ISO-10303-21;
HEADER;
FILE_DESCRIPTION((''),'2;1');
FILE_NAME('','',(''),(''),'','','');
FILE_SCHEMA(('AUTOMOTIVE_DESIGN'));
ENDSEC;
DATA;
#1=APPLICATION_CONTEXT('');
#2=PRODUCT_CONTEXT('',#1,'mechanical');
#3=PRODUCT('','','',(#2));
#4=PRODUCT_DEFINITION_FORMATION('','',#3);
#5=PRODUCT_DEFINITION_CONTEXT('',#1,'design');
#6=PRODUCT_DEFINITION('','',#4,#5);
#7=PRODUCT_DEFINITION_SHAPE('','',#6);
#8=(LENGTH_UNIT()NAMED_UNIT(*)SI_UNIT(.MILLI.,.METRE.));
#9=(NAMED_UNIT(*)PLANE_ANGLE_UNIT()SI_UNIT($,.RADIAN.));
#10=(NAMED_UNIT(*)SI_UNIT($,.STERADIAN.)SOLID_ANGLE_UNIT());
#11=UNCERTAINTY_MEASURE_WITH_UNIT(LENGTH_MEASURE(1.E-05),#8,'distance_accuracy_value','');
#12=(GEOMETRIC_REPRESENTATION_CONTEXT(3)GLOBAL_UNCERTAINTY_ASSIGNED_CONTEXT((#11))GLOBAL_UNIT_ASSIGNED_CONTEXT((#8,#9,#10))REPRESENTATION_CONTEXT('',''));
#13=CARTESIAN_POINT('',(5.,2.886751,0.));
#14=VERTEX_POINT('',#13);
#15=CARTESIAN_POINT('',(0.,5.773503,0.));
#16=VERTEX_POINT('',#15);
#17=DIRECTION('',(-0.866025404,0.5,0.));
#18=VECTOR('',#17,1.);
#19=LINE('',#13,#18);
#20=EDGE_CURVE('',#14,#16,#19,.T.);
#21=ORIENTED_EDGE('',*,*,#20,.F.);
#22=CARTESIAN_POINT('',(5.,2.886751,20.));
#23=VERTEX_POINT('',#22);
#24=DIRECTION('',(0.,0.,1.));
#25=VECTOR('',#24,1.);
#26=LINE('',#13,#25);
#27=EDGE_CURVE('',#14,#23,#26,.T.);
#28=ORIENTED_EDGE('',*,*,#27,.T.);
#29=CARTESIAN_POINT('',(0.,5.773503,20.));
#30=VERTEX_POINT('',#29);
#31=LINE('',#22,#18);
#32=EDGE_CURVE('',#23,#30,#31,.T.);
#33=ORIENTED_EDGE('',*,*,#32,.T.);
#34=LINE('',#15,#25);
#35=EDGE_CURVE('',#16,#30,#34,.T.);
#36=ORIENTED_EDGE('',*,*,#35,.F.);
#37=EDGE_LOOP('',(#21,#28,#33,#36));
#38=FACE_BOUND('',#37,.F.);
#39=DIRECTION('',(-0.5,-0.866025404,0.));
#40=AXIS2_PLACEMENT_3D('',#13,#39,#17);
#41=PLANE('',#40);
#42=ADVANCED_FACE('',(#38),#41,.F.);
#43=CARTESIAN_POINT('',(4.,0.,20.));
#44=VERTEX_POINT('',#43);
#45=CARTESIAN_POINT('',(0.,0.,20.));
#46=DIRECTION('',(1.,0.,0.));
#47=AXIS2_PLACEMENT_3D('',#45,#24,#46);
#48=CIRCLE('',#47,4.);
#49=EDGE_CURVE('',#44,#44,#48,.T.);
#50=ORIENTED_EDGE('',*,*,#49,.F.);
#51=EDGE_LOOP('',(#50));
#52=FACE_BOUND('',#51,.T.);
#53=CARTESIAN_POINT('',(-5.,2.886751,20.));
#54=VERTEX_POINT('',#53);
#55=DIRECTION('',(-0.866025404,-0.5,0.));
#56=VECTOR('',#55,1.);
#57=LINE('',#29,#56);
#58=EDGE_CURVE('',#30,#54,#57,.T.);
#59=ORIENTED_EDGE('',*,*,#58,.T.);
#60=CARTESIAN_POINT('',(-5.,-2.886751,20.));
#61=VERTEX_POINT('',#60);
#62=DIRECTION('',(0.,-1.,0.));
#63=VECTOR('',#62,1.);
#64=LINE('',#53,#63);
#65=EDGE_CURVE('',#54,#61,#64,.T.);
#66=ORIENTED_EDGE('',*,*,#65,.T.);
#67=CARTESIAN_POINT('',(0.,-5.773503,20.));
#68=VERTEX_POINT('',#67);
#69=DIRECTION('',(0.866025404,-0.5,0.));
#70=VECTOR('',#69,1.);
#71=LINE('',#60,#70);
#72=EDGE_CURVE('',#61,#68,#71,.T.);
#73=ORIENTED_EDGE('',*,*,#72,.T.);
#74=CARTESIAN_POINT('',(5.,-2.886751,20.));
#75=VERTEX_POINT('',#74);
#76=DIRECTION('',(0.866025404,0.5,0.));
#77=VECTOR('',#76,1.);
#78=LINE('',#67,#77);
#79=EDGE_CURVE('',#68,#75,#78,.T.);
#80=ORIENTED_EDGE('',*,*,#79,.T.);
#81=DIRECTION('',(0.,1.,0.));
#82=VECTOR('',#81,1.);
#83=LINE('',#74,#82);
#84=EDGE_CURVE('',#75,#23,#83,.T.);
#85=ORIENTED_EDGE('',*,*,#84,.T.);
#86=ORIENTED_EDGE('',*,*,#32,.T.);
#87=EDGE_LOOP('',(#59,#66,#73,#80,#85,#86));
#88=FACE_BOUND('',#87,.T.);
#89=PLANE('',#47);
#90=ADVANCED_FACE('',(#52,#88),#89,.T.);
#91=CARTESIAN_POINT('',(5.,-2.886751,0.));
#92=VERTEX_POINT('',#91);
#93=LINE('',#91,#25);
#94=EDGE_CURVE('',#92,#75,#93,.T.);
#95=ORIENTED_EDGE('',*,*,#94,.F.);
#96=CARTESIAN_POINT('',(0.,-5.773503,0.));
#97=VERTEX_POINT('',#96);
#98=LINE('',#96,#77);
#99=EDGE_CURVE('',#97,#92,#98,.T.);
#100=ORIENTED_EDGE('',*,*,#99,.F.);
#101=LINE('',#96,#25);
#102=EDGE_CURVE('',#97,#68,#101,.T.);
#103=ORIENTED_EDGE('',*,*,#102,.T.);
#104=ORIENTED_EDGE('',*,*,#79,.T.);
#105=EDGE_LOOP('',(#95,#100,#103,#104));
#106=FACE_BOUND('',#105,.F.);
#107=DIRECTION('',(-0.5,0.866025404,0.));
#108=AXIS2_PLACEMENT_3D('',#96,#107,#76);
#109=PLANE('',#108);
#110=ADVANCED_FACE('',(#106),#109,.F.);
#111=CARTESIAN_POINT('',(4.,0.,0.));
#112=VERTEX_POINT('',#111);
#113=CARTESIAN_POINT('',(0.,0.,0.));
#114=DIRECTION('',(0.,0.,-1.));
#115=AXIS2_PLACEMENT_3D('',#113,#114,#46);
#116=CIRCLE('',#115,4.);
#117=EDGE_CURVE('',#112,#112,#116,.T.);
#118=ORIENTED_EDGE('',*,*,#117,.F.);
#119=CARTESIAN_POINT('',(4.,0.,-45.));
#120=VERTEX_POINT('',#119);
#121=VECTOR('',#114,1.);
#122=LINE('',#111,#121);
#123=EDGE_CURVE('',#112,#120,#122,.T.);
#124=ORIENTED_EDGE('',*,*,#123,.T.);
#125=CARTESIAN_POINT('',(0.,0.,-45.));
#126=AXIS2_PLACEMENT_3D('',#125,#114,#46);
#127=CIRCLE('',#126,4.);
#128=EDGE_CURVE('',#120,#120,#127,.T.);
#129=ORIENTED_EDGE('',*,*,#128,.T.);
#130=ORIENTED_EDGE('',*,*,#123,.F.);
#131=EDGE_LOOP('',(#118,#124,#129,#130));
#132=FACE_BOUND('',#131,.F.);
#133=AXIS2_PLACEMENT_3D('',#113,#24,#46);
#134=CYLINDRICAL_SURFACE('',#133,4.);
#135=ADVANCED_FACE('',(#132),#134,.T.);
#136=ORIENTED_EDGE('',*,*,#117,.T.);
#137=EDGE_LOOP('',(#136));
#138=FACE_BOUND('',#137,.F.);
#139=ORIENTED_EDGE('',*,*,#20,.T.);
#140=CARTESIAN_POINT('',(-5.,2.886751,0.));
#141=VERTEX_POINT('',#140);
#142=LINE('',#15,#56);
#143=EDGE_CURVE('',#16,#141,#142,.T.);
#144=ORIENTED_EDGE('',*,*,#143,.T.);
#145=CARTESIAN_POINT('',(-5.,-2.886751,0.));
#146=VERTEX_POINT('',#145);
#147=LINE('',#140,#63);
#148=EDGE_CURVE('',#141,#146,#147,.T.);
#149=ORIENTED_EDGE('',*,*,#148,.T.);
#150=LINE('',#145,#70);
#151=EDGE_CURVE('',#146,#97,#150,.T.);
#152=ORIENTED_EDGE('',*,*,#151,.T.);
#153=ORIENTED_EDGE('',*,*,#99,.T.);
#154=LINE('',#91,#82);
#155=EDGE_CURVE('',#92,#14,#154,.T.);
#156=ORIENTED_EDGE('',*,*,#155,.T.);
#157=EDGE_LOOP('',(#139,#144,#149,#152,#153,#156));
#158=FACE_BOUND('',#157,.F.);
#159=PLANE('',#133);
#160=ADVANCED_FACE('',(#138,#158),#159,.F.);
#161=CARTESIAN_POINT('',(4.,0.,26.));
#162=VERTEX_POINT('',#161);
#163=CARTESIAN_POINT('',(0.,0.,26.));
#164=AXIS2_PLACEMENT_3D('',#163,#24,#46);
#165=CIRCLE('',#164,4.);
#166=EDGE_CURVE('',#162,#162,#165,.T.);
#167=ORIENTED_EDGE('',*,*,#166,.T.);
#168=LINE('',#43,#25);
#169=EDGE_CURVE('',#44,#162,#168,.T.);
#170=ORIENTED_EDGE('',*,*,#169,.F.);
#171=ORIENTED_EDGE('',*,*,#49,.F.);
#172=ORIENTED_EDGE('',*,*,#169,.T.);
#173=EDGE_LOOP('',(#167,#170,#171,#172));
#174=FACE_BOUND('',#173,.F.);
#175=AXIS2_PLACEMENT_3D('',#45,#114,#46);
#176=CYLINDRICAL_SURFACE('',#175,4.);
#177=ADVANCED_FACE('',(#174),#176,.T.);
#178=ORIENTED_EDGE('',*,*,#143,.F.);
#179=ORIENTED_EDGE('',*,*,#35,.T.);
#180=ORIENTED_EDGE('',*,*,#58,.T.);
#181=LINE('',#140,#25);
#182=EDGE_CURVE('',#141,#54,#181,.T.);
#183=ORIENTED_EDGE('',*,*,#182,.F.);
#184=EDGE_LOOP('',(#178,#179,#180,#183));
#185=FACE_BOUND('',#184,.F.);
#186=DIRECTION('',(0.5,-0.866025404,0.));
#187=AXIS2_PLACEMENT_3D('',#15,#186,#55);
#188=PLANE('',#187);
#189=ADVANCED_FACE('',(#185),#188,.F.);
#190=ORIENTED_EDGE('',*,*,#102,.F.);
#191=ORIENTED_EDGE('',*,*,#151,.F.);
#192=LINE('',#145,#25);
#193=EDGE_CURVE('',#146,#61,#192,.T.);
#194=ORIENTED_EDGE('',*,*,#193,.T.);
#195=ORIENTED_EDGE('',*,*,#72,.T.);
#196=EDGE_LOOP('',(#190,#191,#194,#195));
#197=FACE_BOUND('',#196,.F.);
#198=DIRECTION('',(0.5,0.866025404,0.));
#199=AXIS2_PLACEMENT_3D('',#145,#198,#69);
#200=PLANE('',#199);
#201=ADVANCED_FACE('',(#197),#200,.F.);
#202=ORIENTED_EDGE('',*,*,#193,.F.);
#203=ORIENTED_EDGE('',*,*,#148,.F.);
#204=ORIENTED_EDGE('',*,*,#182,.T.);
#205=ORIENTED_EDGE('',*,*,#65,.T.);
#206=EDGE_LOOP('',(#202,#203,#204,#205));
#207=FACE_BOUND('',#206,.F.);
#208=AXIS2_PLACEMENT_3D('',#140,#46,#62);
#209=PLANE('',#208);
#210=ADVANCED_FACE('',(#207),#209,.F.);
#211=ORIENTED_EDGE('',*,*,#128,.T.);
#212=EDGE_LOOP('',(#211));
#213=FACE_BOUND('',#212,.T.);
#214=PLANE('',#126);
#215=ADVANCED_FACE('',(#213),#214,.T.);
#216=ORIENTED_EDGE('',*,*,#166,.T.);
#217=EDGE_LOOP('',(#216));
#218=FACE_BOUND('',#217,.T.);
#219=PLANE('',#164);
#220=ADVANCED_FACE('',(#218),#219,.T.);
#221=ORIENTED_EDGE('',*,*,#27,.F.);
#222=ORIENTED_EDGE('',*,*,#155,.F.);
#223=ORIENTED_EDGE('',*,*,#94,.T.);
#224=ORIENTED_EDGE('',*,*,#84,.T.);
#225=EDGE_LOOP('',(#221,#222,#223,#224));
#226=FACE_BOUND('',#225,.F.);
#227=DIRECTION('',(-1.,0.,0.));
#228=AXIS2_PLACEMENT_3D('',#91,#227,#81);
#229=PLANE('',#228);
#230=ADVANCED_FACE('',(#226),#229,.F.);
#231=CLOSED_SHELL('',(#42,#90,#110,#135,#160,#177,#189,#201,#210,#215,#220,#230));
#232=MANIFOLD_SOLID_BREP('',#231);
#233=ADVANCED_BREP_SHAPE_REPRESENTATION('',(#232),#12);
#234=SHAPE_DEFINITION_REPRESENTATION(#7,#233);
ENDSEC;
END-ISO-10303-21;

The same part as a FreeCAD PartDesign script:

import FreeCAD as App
import Part
import Sketcher

V = App.Vector
Q = App.Units.Quantity

doc = App.newDocument("Part")
params = doc.addObject("Spreadsheet::Sheet", "Params")
for row, (alias, value) in enumerate([
    ("pad1_length", "20 mm"),
    ("sketch2_diameter", "8 mm"),
    ("pad2_length", "45 mm"),
    ("sketch3_diameter", "8 mm"),
    ("pad3_length", "6 mm"),
], start=1):
    params.set(f"A{row}", alias)
    params.set(f"B{row}", "=" + value)
    params.setAlias(f"B{row}", alias)

body = doc.addObject("PartDesign::Body", "Body")

# Sketch on XY plane
sketch1 = body.newObject("Sketcher::SketchObject", "Sketch")
sketch1.AttachmentSupport = (doc.getObject("XY_Plane"), [""])
sketch1.MapMode = "FlatFace"
sketch1.addGeometry([
    Part.LineSegment(V(5, 3, 0), V(0, 6, 0)),  # 0
    Part.LineSegment(V(0, 6, 0), V(-5, 3, 0)),  # 1
    Part.LineSegment(V(-5, 3, 0), V(-5, -3, 0)),  # 2
    Part.LineSegment(V(-5, -3, 0), V(0, -6, 0)),  # 3
    Part.LineSegment(V(0, -6, 0), V(5, -3, 0)),  # 4
    Part.LineSegment(V(5, -3, 0), V(5, 3, 0)),  # 5
], False)
sketch1.addConstraint([
    Sketcher.Constraint("Coincident", 0, 2, 1, 1),
    Sketcher.Constraint("Coincident", 1, 2, 2, 1),
    Sketcher.Constraint("Coincident", 2, 2, 3, 1),
    Sketcher.Constraint("Coincident", 3, 2, 4, 1),
    Sketcher.Constraint("Coincident", 4, 2, 5, 1),
    Sketcher.Constraint("Coincident", 5, 2, 0, 1),
    Sketcher.Constraint("Vertical", 2),
    Sketcher.Constraint("Vertical", 5),
    Sketcher.Constraint("Symmetric", 0, 2, 3, 2, -1, 1),
    Sketcher.Constraint("Symmetric", 1, 2, 4, 2, -1, 1),
    Sketcher.Constraint("PointOnObject", 0, 2, -2),
    Sketcher.Constraint("Parallel", 0, 3),
    Sketcher.Constraint("Horizontal", 2, 2, 4, 2),
    Sketcher.Constraint("Angle", 0, Q("150 deg")),
    Sketcher.Constraint("DistanceX", 1, 2, -1, 1, 5.0),
    Sketcher.Constraint("DistanceY", 2, 2, 2, 1, 5.773503),
])
pad1 = body.newObject("PartDesign::Pad", "Pad")
pad1.Profile = sketch1
pad1.setExpression("Length", "Params.pad1_length")

# Sketch on XY plane
sketch2 = body.newObject("Sketcher::SketchObject", "Sketch001")
sketch2.AttachmentSupport = (doc.getObject("XY_Plane"), [""])
sketch2.MapMode = "FlatFace"
sketch2.addGeometry(Part.Circle(V(0, 0, 0), V(0, 0, 1), 4), False)
sketch2.addConstraint([
    Sketcher.Constraint("Coincident", 0, 3, -1, 1),
    Sketcher.Constraint("Diameter", 0, 8.0),
])
sketch2.setExpression("Constraints[1]", "Params.sketch2_diameter")
pad2 = body.newObject("PartDesign::Pad", "Pad001")
pad2.Profile = sketch2
pad2.setExpression("Length", "Params.pad2_length")
pad2.Reversed = True

# Sketch on XY plane
sketch3 = body.newObject("Sketcher::SketchObject", "Sketch002")
sketch3.AttachmentSupport = (doc.getObject("XY_Plane"), [""])
sketch3.MapMode = "FlatFace"
sketch3.AttachmentOffset = App.Placement(V(0, 0, 20), App.Rotation())
sketch3.addGeometry(Part.Circle(V(0, 0, 0), V(0, 0, 1), 4), False)
sketch3.addConstraint([
    Sketcher.Constraint("Coincident", 0, 3, -1, 1),
    Sketcher.Constraint("Diameter", 0, 8.0),
])
sketch3.setExpression("Constraints[1]", "Params.sketch3_diameter")
pad3 = body.newObject("PartDesign::Pad", "Pad002")
pad3.Profile = sketch3
pad3.setExpression("Length", "Params.pad3_length")

doc.recompute()
